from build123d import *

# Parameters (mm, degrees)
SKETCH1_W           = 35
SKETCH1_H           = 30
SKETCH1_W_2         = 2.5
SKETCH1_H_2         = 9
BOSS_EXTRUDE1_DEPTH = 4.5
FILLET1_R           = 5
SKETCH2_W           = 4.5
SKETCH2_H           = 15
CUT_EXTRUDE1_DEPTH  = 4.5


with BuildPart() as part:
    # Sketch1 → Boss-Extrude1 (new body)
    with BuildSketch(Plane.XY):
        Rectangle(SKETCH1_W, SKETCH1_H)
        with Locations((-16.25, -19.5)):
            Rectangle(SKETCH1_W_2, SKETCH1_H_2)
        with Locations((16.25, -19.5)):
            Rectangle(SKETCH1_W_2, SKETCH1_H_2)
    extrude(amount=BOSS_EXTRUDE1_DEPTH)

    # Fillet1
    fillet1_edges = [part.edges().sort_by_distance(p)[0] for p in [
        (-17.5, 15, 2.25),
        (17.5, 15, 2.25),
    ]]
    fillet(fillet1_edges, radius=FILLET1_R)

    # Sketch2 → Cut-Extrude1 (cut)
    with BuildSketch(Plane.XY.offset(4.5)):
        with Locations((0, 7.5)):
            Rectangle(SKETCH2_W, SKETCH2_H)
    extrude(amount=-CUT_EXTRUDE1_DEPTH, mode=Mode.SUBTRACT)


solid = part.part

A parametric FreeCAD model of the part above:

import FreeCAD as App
import Part
import Sketcher
from FreeCAD import Vector


def edges_at(feature, points):
    """Names of the edges that pass closest to the given points."""
    edges = feature.Shape.Edges
    near = lambda p: min(range(len(edges)), key=lambda i: edges[i].distToShape(Part.Vertex(*p))[0])
    return sorted({f"Edge{near(p) + 1}" for p in points})

doc = App.newDocument("Part")
body = doc.addObject("PartDesign::Body", "Body")

sketch1 = body.newObject("Sketcher::SketchObject", "Sketch")
sketch1.AttachmentSupport = (doc.getObject("XY_Plane"), [""])
sketch1.MapMode = "FlatFace"
sketch1.addGeometry([
    Part.LineSegment(Vector(-17.5, 15, 0), Vector(-17.5, -24, 0)),
    Part.LineSegment(Vector(-17.5, -24, 0), Vector(-15, -24, 0)),
    Part.LineSegment(Vector(-15, -24, 0), Vector(-15, -15, 0)),
    Part.LineSegment(Vector(-15, -15, 0), Vector(15, -15, 0)),
    Part.LineSegment(Vector(15, -15, 0), Vector(15, -24, 0)),
    Part.LineSegment(Vector(15, -24, 0), Vector(17.5, -24, 0)),
    Part.LineSegment(Vector(17.5, -24, 0), Vector(17.5, 15, 0)),
    Part.LineSegment(Vector(17.5, 15, 0), Vector(-17.5, 15, 0)),
], False)
sketch1.addConstraint([
    Sketcher.Constraint("Coincident", 0, 2, 1, 1),
    Sketcher.Constraint("Coincident", 1, 2, 2, 1),
    Sketcher.Constraint("Coincident", 2, 2, 3, 1),
    Sketcher.Constraint("Coincident", 3, 2, 4, 1),
    Sketcher.Constraint("Coincident", 4, 2, 5, 1),
    Sketcher.Constraint("Coincident", 5, 2, 6, 1),
    Sketcher.Constraint("Coincident", 6, 2, 7, 1),
    Sketcher.Constraint("Coincident", 7, 2, 0, 1),
    Sketcher.Constraint("Vertical", 0),
    Sketcher.Constraint("Horizontal", 1),
    Sketcher.Constraint("Vertical", 2),
    Sketcher.Constraint("Horizontal", 3),
    Sketcher.Constraint("Vertical", 4),
    Sketcher.Constraint("Horizontal", 5),
    Sketcher.Constraint("Vertical", 6),
    Sketcher.Constraint("Horizontal", 7),
    Sketcher.Constraint("Symmetric", 1, 2, 4, 2, -2),
    Sketcher.Constraint("Equal", 1, 5),
    Sketcher.Constraint("DistanceX", 3, 1, 3, 2, 30.0),
    Sketcher.Constraint("DistanceX", 7, 2, 7, 1, 35.0),
    Sketcher.Constraint("DistanceY", 0, 2, 0, 1, 39.0),
    Sketcher.Constraint("DistanceY", 2, 1, 2, 2, 9.0),
    Sketcher.Constraint("DistanceY", 0, 2, -1, 1, 24.0),
])
pad1 = body.newObject("PartDesign::Pad", "Pad")
pad1.Profile = sketch1
pad1.Length = 4.5
doc.recompute()

fillet = body.newObject("PartDesign::Fillet", "Fillet")
fillet.Base = (pad1, edges_at(pad1, [(-17.5, 15, 2.25), (17.5, 15, 2.25)]))
fillet.Radius = 5

sketch2 = body.newObject("Sketcher::SketchObject", "Sketch001")
sketch2.AttachmentSupport = (doc.getObject("XY_Plane"), [""])
sketch2.MapMode = "FlatFace"
sketch2.AttachmentOffset = App.Placement(Vector(0, 0, 4.5), App.Rotation())
sketch2.addGeometry([
    Part.LineSegment(Vector(-2.2, 15, 0), Vector(-2.2, 0, 0)),
    Part.LineSegment(Vector(-2.2, 0, 0), Vector(2.2, 0, 0)),
    Part.LineSegment(Vector(2.2, 0, 0), Vector(2.2, 15, 0)),
    Part.LineSegment(Vector(2.2, 15, 0), Vector(-2.2, 15, 0)),
], False)
sketch2.addConstraint([
    Sketcher.Constraint("Coincident", 0, 2, 1, 1),
    Sketcher.Constraint("Coincident", 1, 2, 2, 1),
    Sketcher.Constraint("Coincident", 2, 2, 3, 1),
    Sketcher.Constraint("Coincident", 3, 2, 0, 1),
    Sketcher.Constraint("Vertical", 0),
    Sketcher.Constraint("Horizontal", 1),
    Sketcher.Constraint("Vertical", 2),
    Sketcher.Constraint("Horizontal", 3),
    Sketcher.Constraint("Symmetric", 0, 2, 1, 2, -1, 1),
    Sketcher.Constraint("DistanceY", 0, 2, 0, 1, 15.0),
    Sketcher.Constraint("DistanceX", 1, 1, 1, 2, 4.5),
])
pocket1 = body.newObject("PartDesign::Pocket", "Pocket")
pocket1.Profile = sketch2
pocket1.Length = 4.5

doc.recompute()
